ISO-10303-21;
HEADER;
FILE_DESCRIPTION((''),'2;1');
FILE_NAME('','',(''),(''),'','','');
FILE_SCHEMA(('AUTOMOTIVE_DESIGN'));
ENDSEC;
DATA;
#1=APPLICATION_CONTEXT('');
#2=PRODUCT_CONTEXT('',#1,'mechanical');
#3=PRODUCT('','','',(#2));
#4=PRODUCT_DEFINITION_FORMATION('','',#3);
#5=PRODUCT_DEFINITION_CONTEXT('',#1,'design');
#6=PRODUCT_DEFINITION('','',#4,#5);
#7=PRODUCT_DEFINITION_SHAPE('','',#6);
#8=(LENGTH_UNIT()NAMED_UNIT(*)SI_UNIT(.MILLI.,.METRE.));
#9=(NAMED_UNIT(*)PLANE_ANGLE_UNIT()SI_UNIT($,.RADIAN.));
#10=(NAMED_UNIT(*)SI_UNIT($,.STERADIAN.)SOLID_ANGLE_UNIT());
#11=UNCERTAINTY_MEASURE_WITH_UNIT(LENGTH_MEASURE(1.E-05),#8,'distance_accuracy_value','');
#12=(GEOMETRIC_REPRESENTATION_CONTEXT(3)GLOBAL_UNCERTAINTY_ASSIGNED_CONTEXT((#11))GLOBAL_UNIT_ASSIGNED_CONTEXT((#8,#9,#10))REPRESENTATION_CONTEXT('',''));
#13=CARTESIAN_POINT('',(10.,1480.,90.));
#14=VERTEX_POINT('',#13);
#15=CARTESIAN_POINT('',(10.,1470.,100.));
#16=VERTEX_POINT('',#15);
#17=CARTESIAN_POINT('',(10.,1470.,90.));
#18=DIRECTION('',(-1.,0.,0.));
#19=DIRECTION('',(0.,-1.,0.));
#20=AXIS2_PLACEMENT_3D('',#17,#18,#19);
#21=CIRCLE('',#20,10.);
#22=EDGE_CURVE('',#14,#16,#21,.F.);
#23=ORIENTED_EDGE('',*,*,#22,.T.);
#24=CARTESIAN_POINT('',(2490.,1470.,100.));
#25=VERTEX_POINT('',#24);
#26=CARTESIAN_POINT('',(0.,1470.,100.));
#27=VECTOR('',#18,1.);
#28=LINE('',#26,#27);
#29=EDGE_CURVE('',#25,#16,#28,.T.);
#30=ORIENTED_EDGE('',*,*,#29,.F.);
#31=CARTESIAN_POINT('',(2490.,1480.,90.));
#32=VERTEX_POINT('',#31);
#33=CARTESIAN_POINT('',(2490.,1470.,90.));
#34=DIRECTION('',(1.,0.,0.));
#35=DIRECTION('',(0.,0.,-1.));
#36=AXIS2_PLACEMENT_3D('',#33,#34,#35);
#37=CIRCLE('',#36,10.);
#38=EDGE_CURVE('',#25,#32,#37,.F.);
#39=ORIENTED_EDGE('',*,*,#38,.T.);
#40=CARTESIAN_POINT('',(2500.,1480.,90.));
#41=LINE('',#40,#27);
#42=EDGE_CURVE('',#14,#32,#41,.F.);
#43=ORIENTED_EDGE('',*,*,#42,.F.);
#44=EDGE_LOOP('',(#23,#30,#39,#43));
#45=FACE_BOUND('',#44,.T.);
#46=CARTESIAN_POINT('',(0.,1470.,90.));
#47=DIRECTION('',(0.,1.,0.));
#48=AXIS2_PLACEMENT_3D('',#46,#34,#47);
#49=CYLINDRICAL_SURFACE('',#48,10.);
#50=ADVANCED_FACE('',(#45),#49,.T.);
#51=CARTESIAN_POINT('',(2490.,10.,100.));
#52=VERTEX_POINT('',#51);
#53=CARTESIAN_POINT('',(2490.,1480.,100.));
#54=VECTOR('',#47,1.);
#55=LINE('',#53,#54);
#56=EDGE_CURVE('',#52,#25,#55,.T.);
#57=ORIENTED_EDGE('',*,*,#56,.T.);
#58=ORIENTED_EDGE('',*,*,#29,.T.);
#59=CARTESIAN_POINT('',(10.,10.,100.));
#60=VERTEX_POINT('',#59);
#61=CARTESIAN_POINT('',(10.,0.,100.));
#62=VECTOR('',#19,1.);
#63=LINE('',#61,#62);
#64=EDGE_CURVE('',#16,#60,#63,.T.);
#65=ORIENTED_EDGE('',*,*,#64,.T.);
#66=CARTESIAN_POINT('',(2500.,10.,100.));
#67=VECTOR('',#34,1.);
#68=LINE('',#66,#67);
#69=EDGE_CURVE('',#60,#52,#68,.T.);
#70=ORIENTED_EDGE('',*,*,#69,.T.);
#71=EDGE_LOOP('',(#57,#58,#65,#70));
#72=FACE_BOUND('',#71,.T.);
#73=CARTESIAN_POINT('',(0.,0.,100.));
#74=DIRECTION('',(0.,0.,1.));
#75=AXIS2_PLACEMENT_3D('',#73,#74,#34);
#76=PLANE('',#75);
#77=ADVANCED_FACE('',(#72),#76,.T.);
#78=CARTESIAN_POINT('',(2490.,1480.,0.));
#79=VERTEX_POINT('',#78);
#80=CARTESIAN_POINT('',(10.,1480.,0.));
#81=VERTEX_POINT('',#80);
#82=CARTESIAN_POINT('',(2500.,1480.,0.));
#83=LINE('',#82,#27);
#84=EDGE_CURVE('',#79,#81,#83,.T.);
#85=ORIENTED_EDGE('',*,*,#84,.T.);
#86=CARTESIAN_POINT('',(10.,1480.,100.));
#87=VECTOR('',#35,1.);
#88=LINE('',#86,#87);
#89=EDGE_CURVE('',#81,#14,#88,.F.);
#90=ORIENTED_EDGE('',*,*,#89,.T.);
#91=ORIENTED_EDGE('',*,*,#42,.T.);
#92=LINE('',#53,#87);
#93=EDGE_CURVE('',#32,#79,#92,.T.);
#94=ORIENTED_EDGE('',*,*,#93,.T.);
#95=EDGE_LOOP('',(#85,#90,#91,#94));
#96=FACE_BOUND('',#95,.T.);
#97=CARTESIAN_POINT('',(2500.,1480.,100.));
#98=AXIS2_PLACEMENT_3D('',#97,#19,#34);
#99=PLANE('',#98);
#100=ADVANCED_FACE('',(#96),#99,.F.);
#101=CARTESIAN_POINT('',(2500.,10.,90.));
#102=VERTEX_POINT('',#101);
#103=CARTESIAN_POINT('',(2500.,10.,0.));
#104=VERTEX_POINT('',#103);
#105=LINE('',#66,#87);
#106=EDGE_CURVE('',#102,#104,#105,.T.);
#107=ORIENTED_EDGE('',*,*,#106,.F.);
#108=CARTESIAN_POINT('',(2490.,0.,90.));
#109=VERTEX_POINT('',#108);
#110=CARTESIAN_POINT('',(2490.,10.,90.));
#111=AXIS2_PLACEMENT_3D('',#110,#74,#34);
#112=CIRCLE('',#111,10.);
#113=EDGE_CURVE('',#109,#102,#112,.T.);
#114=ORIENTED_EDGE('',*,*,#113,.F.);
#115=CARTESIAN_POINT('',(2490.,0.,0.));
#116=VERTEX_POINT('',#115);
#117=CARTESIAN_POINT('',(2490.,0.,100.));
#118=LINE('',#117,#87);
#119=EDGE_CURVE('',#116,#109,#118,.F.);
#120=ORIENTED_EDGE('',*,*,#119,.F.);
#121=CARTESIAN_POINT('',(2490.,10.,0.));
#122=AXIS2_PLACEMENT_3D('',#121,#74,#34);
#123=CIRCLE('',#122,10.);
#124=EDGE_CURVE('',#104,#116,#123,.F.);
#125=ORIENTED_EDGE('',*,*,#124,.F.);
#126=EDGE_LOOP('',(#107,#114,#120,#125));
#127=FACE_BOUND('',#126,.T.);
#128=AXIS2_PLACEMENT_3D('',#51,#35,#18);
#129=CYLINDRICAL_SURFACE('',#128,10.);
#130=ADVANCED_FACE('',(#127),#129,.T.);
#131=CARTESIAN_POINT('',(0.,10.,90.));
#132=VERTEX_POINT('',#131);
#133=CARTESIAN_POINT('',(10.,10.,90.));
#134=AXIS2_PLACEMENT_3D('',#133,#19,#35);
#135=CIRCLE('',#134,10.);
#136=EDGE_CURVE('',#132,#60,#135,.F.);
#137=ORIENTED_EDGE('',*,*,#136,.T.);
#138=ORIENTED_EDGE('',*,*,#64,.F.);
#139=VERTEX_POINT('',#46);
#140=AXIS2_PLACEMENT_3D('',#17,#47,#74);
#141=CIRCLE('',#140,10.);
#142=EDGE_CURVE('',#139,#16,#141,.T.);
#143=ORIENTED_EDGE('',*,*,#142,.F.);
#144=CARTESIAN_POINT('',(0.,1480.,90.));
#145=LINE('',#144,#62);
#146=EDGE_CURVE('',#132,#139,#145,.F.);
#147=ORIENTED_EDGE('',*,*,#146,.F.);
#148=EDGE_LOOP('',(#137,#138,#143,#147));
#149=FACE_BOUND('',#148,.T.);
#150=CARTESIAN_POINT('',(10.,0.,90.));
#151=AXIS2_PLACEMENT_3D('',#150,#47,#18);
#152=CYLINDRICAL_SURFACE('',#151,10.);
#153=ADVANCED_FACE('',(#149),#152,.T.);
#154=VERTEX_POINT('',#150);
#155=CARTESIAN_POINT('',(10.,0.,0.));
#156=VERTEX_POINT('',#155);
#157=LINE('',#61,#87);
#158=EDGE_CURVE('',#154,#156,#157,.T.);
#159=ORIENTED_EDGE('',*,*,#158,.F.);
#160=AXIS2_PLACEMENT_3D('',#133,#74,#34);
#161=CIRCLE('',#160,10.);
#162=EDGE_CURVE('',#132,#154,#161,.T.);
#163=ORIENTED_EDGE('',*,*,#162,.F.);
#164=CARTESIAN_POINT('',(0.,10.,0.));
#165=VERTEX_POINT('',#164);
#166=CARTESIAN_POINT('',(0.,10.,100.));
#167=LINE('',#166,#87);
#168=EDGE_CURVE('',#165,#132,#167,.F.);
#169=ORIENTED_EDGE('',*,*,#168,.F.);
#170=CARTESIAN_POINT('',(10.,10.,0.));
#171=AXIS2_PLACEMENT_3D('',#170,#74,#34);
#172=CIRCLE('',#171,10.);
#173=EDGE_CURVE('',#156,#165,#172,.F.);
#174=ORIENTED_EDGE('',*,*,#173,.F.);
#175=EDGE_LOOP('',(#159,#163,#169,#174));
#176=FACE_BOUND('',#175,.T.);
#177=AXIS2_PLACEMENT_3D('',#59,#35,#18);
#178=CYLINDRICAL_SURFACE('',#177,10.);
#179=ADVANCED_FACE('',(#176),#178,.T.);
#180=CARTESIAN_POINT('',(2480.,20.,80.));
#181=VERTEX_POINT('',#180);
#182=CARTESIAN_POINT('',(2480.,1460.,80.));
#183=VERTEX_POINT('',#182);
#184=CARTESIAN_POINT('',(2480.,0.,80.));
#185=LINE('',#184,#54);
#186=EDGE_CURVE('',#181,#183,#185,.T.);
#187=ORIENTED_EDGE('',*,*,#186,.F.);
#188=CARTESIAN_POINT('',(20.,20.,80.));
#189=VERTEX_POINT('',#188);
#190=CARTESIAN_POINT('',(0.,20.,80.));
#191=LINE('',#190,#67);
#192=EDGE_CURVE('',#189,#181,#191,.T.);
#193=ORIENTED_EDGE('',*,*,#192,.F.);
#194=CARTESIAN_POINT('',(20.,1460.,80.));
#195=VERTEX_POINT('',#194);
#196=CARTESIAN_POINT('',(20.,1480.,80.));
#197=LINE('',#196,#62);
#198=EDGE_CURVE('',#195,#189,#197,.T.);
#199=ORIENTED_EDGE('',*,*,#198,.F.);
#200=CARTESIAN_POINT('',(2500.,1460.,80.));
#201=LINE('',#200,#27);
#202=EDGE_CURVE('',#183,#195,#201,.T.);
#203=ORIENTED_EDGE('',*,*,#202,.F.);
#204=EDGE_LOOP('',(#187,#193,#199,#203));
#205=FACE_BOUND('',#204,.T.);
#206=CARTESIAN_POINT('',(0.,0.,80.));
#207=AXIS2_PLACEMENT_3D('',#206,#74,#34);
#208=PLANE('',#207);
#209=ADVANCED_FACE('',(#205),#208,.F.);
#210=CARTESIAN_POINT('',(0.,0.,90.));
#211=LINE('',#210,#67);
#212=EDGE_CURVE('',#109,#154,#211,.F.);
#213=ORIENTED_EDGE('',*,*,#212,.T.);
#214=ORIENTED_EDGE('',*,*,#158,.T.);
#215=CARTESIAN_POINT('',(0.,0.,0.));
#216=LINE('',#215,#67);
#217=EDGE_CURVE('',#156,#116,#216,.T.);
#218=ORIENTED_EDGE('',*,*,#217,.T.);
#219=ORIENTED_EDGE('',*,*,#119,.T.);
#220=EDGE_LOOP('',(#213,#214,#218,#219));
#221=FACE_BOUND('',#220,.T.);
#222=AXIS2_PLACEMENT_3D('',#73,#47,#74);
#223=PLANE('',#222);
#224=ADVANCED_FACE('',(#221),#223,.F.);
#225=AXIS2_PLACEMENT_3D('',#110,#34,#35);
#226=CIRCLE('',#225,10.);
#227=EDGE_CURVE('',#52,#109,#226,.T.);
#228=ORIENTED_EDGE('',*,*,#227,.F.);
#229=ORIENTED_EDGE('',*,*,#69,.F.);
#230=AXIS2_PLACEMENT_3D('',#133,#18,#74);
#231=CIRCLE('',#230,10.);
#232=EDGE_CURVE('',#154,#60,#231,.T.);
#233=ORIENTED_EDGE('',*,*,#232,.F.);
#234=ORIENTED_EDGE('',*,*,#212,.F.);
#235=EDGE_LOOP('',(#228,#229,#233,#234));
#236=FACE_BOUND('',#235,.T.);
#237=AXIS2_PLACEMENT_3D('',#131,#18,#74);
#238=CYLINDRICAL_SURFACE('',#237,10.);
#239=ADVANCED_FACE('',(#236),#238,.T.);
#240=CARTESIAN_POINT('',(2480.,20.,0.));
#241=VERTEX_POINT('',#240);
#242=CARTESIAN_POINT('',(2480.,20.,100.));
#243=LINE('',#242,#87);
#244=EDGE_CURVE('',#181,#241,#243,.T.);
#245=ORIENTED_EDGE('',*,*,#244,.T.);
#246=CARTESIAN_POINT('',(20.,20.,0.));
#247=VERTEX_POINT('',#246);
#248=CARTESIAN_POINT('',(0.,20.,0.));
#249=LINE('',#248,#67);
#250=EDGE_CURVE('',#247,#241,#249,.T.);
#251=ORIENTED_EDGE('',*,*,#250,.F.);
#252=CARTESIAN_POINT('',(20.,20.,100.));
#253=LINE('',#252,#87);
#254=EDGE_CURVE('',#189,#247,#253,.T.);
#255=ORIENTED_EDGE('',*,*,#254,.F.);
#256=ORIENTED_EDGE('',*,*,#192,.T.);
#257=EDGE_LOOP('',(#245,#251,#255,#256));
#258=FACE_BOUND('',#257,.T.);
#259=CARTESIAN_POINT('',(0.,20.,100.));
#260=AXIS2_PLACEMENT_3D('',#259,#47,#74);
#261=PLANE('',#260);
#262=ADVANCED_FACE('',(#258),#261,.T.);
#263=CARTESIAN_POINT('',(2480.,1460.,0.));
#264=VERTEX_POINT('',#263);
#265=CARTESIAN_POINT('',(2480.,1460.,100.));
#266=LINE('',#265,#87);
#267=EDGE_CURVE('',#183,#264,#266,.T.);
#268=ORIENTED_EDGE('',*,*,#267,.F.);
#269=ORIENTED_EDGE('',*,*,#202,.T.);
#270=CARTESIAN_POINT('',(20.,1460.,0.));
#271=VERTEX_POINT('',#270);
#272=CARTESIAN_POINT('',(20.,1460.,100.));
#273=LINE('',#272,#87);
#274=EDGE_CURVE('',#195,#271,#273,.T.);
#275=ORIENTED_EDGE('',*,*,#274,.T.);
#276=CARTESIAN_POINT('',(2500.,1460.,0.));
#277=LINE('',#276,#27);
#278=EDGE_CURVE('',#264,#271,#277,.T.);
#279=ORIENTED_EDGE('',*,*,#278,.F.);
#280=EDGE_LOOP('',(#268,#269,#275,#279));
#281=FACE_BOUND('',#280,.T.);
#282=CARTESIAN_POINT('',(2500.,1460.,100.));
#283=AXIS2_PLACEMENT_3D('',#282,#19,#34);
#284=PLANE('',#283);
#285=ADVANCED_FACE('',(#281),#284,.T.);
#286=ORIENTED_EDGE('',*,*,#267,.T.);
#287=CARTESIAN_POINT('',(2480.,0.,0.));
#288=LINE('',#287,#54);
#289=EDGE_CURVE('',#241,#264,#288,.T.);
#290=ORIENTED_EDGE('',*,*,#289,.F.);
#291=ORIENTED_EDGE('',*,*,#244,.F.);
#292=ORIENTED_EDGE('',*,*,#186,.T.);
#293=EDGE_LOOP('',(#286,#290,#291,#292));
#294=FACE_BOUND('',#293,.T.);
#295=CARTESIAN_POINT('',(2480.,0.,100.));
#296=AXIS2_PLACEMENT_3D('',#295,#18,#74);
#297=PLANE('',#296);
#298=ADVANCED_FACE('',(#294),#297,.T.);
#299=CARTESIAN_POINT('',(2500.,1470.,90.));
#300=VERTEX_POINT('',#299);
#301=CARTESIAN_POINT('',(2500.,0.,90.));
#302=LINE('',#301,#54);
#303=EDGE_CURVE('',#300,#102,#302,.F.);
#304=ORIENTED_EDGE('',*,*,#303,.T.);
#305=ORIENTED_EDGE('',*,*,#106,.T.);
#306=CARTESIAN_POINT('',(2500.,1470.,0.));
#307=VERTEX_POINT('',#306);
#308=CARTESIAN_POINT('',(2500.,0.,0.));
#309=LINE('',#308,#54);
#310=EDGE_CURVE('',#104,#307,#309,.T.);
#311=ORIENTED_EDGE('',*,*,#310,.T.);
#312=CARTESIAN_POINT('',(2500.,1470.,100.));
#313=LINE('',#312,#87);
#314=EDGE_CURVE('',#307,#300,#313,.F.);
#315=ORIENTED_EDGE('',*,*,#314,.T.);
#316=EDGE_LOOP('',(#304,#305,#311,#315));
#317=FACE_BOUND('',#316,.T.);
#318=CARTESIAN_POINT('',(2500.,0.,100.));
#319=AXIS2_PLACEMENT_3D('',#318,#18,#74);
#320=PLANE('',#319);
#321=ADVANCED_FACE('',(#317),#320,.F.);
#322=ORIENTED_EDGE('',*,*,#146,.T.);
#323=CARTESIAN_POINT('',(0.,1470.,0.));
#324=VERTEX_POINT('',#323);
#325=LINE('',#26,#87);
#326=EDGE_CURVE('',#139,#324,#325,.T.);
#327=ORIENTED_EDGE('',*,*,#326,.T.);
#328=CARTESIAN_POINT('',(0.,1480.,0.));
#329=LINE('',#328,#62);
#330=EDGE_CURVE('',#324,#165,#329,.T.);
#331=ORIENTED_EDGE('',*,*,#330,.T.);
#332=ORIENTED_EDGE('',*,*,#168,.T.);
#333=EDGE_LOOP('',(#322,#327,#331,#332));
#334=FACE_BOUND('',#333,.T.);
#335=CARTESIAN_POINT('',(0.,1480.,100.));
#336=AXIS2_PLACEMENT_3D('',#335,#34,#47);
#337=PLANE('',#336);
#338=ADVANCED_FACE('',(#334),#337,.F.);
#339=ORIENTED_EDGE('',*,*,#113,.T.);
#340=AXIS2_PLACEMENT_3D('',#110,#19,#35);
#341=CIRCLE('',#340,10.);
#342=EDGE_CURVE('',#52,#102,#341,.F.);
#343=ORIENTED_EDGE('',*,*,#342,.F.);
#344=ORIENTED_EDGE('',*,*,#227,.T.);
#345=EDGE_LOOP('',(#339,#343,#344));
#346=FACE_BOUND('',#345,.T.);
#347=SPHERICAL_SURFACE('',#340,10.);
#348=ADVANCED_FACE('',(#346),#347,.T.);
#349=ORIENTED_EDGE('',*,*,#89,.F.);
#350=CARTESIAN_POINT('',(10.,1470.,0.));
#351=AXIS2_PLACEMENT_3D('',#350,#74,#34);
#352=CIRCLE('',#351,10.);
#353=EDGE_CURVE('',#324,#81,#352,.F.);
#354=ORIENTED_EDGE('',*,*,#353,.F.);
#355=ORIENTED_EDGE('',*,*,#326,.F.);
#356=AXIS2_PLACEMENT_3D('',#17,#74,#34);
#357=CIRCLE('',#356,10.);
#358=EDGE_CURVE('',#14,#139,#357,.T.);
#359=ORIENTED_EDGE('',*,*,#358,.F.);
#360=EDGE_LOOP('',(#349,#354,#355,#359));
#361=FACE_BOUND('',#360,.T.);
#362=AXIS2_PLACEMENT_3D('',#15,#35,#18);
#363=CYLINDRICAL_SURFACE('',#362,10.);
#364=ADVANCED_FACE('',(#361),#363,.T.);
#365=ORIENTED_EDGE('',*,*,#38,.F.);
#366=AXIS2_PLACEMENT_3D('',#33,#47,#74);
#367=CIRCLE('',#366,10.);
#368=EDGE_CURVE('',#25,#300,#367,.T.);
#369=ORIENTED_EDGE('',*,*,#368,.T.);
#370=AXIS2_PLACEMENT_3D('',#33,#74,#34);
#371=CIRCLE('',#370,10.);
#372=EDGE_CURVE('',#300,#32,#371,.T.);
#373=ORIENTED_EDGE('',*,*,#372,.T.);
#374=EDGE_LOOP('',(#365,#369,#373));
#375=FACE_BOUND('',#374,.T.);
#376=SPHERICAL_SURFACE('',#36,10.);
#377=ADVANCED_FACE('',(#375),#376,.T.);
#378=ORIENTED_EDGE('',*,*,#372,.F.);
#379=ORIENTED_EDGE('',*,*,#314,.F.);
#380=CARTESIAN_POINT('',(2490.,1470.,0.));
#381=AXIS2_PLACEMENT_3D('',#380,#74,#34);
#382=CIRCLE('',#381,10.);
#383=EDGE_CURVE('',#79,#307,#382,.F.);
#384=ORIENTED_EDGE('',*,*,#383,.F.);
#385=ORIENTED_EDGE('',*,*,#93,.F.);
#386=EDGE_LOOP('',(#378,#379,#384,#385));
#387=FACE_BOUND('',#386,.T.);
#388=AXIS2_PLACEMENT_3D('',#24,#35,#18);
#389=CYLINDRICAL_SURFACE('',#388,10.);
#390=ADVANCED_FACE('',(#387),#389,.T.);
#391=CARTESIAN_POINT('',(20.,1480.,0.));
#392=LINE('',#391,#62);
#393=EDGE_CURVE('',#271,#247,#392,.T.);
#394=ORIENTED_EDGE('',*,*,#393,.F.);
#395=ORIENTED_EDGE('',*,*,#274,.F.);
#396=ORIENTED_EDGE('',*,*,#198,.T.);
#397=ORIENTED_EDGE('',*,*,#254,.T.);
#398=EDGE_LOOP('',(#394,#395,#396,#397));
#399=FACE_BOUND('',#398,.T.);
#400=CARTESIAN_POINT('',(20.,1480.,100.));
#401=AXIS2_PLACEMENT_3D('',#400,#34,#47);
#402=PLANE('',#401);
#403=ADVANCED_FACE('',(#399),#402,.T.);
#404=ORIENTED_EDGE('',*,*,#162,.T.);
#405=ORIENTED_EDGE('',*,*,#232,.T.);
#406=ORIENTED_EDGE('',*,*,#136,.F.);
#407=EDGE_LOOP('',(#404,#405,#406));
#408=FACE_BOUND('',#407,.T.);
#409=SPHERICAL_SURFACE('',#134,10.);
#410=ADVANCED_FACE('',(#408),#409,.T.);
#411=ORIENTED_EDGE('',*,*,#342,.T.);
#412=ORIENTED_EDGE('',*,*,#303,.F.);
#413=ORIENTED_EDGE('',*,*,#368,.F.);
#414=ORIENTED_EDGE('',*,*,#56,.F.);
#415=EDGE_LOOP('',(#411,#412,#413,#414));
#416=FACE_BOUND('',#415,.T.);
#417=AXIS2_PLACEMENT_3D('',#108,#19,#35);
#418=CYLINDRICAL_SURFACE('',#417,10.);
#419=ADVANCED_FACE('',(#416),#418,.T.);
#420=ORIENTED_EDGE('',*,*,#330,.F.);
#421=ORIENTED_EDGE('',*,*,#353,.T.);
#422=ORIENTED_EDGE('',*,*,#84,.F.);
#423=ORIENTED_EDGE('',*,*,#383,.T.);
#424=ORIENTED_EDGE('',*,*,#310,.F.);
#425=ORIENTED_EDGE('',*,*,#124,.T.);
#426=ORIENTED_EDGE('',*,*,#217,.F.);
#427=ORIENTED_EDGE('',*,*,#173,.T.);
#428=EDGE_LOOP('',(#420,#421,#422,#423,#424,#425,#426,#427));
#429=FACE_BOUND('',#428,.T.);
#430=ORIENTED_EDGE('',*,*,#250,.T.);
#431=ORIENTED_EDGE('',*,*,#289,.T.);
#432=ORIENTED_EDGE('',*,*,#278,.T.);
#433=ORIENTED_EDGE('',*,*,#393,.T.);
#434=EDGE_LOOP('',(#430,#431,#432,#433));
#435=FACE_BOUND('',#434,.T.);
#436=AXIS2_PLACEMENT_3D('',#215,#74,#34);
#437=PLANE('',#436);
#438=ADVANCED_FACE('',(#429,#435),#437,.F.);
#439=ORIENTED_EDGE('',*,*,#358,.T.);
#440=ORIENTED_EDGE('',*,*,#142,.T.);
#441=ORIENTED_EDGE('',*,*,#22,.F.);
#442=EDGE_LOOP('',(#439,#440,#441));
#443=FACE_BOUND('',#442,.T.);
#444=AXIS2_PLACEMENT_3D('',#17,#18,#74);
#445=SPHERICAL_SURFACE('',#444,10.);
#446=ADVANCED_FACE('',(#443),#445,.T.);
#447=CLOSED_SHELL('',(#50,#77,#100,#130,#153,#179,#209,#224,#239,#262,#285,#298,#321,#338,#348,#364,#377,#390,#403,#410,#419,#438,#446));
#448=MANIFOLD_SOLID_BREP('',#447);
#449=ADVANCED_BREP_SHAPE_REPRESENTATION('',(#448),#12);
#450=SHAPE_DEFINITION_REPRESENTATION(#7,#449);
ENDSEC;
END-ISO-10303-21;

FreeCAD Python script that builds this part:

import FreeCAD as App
import Part
import Sketcher
from FreeCAD import Vector


def edges_at(feature, points):
    """Names of the edges that pass closest to the given points."""
    edges = feature.Shape.Edges
    near = lambda p: min(range(len(edges)), key=lambda i: edges[i].distToShape(Part.Vertex(*p))[0])
    return sorted({f"Edge{near(p) + 1}" for p in points})


def faces_at(feature, points):
    """Names of the faces that lie closest to the given points."""
    faces = feature.Shape.Faces
    near = lambda p: min(range(len(faces)), key=lambda i: faces[i].distToShape(Part.Vertex(*p))[0])
    return sorted({f"Face{near(p) + 1}" for p in points})

doc = App.newDocument("Part")
body = doc.addObject("PartDesign::Body", "Body")

# Sketch on XY plane
sketch1 = body.newObject("Sketcher::SketchObject", "Sketch")
sketch1.AttachmentSupport = (doc.getObject("XY_Plane"), [""])
sketch1.MapMode = "FlatFace"
sketch1.addGeometry([
    Part.LineSegment(Vector(0, 1480, 0), Vector(0, 0, 0)),
    Part.LineSegment(Vector(0, 0, 0), Vector(2500, 0, 0)),
    Part.LineSegment(Vector(2500, 0, 0), Vector(2500, 1480, 0)),
    Part.LineSegment(Vector(2500, 1480, 0), Vector(0, 1480, 0)),
], False)
sketch1.addConstraint([
    Sketcher.Constraint("Coincident", 0, 2, 1, 1),
    Sketcher.Constraint("Coincident", 1, 2, 2, 1),
    Sketcher.Constraint("Coincident", 2, 2, 3, 1),
    Sketcher.Constraint("Coincident", 3, 2, 0, 1),
    Sketcher.Constraint("Vertical", 0),
    Sketcher.Constraint("Horizontal", 1),
    Sketcher.Constraint("Vertical", 2),
    Sketcher.Constraint("Horizontal", 3),
    Sketcher.Constraint("Coincident", 0, 2, -1, 1),
    Sketcher.Constraint("DistanceX", 1, 1, 1, 2, 2500.0),
    Sketcher.Constraint("DistanceY", 0, 2, 0, 1, 1480.0),
])
pad1 = body.newObject("PartDesign::Pad", "Pad")
pad1.Profile = sketch1
pad1.Length = 100
doc.recompute()

thickness = body.newObject("PartDesign::Thickness", "Thickness")
thickness.Base = (pad1, faces_at(pad1, [(1250, 740, 0)]))
thickness.Value = 20
thickness.Reversed = True
thickness.Join = "Intersection"
doc.recompute()

fillet = body.newObject("PartDesign::Fillet", "Fillet")
fillet.Base = (thickness, edges_at(thickness, [
    (2500, 740, 100),
    (1250, 1480, 100),
    (0, 740, 100),
    (0, 1480, 50),
    (2500, 1480, 50),
    (2500, 0, 50),
    (0, 0, 50),
    (1250, 0, 100),
]))
fillet.Radius = 10

doc.recompute()
